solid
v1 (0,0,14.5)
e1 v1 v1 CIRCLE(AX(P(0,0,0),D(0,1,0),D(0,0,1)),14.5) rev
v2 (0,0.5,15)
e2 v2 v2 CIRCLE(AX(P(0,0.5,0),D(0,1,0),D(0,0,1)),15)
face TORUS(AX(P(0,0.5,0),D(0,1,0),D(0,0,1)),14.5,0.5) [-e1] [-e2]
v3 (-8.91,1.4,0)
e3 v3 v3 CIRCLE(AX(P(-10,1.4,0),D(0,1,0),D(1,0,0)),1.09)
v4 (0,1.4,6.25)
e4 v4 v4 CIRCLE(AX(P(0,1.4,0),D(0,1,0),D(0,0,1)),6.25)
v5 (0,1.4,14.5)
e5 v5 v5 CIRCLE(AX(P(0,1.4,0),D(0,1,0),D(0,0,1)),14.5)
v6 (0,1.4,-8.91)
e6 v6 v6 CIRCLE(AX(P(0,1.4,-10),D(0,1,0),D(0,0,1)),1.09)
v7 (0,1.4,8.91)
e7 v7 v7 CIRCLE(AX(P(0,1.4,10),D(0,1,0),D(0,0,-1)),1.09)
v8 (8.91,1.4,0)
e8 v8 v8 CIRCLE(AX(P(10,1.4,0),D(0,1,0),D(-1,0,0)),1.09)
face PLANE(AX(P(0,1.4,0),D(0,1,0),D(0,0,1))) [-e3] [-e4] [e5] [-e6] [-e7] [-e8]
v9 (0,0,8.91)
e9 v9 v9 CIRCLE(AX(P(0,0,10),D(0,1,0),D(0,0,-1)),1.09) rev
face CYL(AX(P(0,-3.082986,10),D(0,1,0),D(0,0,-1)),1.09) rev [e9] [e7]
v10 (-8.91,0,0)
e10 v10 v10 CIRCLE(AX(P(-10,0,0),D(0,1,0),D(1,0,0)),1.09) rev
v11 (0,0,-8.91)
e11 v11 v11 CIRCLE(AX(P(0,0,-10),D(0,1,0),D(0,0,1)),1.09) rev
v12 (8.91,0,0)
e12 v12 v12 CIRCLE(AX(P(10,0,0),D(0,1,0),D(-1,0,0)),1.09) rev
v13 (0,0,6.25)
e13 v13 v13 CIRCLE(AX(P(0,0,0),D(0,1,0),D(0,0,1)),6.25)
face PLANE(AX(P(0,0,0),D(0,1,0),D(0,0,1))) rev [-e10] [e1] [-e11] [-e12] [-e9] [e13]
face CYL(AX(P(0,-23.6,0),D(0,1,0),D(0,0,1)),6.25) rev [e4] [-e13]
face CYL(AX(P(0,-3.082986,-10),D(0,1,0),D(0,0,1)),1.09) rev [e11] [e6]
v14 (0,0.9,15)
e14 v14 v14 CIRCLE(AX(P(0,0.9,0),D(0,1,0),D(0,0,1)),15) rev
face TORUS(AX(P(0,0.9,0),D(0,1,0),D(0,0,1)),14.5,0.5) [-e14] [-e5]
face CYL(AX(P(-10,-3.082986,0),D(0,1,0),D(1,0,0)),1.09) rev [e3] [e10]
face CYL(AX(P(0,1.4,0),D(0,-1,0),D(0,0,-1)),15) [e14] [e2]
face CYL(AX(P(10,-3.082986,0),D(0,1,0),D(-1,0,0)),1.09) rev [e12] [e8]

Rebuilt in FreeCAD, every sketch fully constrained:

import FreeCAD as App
import Part
import Sketcher

V = App.Vector


def edges_at(feature, points):
    """Names of the edges that pass closest to the given points."""
    edges = feature.Shape.Edges
    near = lambda p: min(range(len(edges)), key=lambda i: edges[i].distToShape(Part.Vertex(*p))[0])
    return sorted({f"Edge{near(p) + 1}" for p in points})

doc = App.newDocument("Part")
body = doc.addObject("PartDesign::Body", "Body")

# Sketch on XZ plane
sketch1 = doc.addObject("Sketcher::SketchObject", "Sketch")
body.addObject(sketch1)
sketch1.AttachmentSupport = (doc.XZ_Plane, [""])
sketch1.MapMode = "FlatFace"
sketch1.addGeometry(Part.Circle(V(0, 0, 0), V(0, 0, 1), 15), False)
sketch1.addConstraint([
    Sketcher.Constraint("Coincident", 0, 3, -1, 1),
    Sketcher.Constraint("Diameter", 0, 30.0),
])
pad1 = doc.addObject("PartDesign::Pad", "Pad")
body.addObject(pad1)
pad1.Profile = sketch1
pad1.Length = 1.4
pad1.Reversed = True

# Sketch on XZ plane
sketch2 = doc.addObject("Sketcher::SketchObject", "Sketch001")
body.addObject(sketch2)
sketch2.AttachmentSupport = (doc.XZ_Plane, [""])
sketch2.MapMode = "FlatFace"
sketch2.AttachmentOffset = App.Placement(V(0, 0, -1.4), App.Rotation())
sketch2.addGeometry(Part.Circle(V(0, -10, 0), V(0, 0, 1), 1.1), False)
sketch2.addConstraint([
    Sketcher.Constraint("PointOnObject", 0, 3, -2),
    Sketcher.Constraint("Diameter", 0, 2.18),
    Sketcher.Constraint("DistanceY", 0, 3, -1, 1, 10.0),
])
pocket1 = doc.addObject("PartDesign::Pocket", "Pocket")
body.addObject(pocket1)
pocket1.Profile = sketch2
pocket1.Length = 1.4
pocket1.Reversed = True
doc.recompute()

polarpattern = doc.addObject("PartDesign::PolarPattern", "PolarPattern")
body.addObject(polarpattern)
polarpattern.Originals = [pocket1]
polarpattern.Axis = (doc.Y_Axis, [""])
polarpattern.Angle = 360
polarpattern.Occurrences = 4
body.Tip = polarpattern
doc.recompute()

fillet = doc.addObject("PartDesign::Fillet", "Fillet")
body.addObject(fillet)
fillet.Base = (polarpattern, edges_at(polarpattern, [(0, 0, -15), (0, 1.4, -15)]))
fillet.Radius = 0.5

# Sketch on XZ plane
sketch3 = doc.addObject("Sketcher::SketchObject", "Sketch002")
body.addObject(sketch3)
sketch3.AttachmentSupport = (doc.XZ_Plane, [""])
sketch3.MapMode = "FlatFace"
sketch3.AttachmentOffset = App.Placement(V(0, 0, -1.4), App.Rotation())
sketch3.addGeometry(Part.Circle(V(0, 0, 0), V(0, 0, 1), 6), False)
sketch3.addConstraint([
    Sketcher.Constraint("Coincident", 0, 3, -1, 1),
    Sketcher.Constraint("Diameter", 0, 12.5),
])
pocket2 = doc.addObject("PartDesign::Pocket", "Pocket001")
body.addObject(pocket2)
pocket2.Profile = sketch3
pocket2.Length = 50
pocket2.Midplane = True

doc.recompute()
